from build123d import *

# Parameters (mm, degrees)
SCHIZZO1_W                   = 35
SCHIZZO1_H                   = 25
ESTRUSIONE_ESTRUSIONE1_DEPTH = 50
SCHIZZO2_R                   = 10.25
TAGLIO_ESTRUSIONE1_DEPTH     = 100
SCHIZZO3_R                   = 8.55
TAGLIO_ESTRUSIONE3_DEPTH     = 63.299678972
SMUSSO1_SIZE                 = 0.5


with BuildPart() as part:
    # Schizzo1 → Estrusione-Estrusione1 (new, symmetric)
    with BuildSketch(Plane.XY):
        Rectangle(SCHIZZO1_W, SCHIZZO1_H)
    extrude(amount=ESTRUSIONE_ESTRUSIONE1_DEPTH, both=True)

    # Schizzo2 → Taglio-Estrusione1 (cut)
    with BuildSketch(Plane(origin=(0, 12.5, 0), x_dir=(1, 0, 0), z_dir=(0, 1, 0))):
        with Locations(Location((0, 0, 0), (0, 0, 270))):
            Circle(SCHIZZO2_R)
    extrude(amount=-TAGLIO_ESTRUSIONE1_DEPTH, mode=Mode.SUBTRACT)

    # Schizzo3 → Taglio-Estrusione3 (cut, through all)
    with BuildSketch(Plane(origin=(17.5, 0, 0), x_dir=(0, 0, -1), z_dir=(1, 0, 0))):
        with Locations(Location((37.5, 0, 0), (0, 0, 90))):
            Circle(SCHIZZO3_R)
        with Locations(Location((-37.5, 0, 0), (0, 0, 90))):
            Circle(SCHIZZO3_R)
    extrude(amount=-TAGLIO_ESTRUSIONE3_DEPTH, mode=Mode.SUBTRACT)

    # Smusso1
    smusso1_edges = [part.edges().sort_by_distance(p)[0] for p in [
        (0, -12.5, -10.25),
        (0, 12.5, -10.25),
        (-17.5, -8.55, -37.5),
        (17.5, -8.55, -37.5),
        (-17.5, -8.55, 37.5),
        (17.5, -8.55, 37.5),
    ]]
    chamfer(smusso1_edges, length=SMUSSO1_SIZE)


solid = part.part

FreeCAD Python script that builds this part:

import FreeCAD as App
import Part
import Sketcher


def edges_at(feature, points):
    """Names of the edges that pass closest to the given points."""
    edges = feature.Shape.Edges
    near = lambda p: min(range(len(edges)), key=lambda i: edges[i].distToShape(Part.Vertex(*p))[0])
    return sorted({f"Edge{near(p) + 1}" for p in points})

doc = App.newDocument("Part")
body = doc.addObject("PartDesign::Body", "Body")

# Sketch on XY plane
sketch1 = body.newObject("Sketcher::SketchObject", "Sketch")
sketch1.AttachmentSupport = (doc.getObject("XY_Plane"), [""])
sketch1.MapMode = "FlatFace"
sketch1.addGeometry([
    Part.LineSegment(App.Vector(-18, 12, 0), App.Vector(-18, -12, 0)),
    Part.LineSegment(App.Vector(-18, -12, 0), App.Vector(18, -12, 0)),
    Part.LineSegment(App.Vector(18, -12, 0), App.Vector(18, 12, 0)),
    Part.LineSegment(App.Vector(18, 12, 0), App.Vector(-18, 12, 0)),
], False)
sketch1.addConstraint([
    Sketcher.Constraint("Coincident", 0, 2, 1, 1),
    Sketcher.Constraint("Coincident", 1, 2, 2, 1),
    Sketcher.Constraint("Coincident", 2, 2, 3, 1),
    Sketcher.Constraint("Coincident", 3, 2, 0, 1),
    Sketcher.Constraint("Vertical", 0),
    Sketcher.Constraint("Horizontal", 1),
    Sketcher.Constraint("Vertical", 2),
    Sketcher.Constraint("Horizontal", 3),
    Sketcher.Constraint("Symmetric", 0, 2, 2, 2, -1, 1),
    Sketcher.Constraint("DistanceX", 1, 1, 1, 2, 35.0),
    Sketcher.Constraint("DistanceY", 0, 2, 0, 1, 25.0),
])
pad1 = body.newObject("PartDesign::Pad", "Pad")
pad1.Profile = sketch1
pad1.Length = 100
pad1.Midplane = True

# Sketch on XZ plane
sketch2 = body.newObject("Sketcher::SketchObject", "Sketch001")
sketch2.AttachmentSupport = (doc.getObject("XZ_Plane"), [""])
sketch2.MapMode = "FlatFace"
sketch2.AttachmentOffset = App.Placement(App.Vector(0, 0, -12.5), App.Rotation())
sketch2.addGeometry(Part.Circle(App.Vector(0, 0, 0), App.Vector(0, 0, 1), 10), False)
sketch2.addConstraint([
    Sketcher.Constraint("Coincident", 0, 3, -1, 1),
    Sketcher.Constraint("Diameter", 0, 20.5),
])
pocket1 = body.newObject("PartDesign::Pocket", "Pocket")
pocket1.Profile = sketch2
pocket1.Length = 100
pocket1.Reversed = True

# Sketch on YZ plane
sketch3 = body.newObject("Sketcher::SketchObject", "Sketch002")
sketch3.AttachmentSupport = (doc.getObject("YZ_Plane"), [""])
sketch3.MapMode = "FlatFace"
sketch3.AttachmentOffset = App.Placement(App.Vector(0, 0, 17.5), App.Rotation())
sketch3.addGeometry([
    Part.Circle(App.Vector(0, -38, 0), App.Vector(0, 0, 1), 9),
    Part.Circle(App.Vector(0, 38, 0), App.Vector(0, 0, 1), 9),
], False)
sketch3.addConstraint([
    Sketcher.Constraint("Equal", 0, 1),
    Sketcher.Constraint("Symmetric", 0, 3, 1, 3, -1, 1),
    Sketcher.Constraint("PointOnObject", 0, 3, -2),
    Sketcher.Constraint("Diameter", 0, 17.1),
    Sketcher.Constraint("DistanceY", 0, 3, 1, 3, 75.0),
])
pocket2 = body.newObject("PartDesign::Pocket", "Pocket001")
pocket2.Profile = sketch3
pocket2.Type = "ThroughAll"
doc.recompute()

chamfer = body.newObject("PartDesign::Chamfer", "Chamfer")
chamfer.Base = (pocket2, edges_at(pocket2, [
    (0, -12.5, -10.25),
    (0, 12.5, -10.25),
    (-17.5, -8.55, -37.5),
    (17.5, -8.55, -37.5),
    (-17.5, -8.55, 37.5),
    (17.5, -8.55, 37.5),
]))
chamfer.Size = 0.5

doc.recompute()
